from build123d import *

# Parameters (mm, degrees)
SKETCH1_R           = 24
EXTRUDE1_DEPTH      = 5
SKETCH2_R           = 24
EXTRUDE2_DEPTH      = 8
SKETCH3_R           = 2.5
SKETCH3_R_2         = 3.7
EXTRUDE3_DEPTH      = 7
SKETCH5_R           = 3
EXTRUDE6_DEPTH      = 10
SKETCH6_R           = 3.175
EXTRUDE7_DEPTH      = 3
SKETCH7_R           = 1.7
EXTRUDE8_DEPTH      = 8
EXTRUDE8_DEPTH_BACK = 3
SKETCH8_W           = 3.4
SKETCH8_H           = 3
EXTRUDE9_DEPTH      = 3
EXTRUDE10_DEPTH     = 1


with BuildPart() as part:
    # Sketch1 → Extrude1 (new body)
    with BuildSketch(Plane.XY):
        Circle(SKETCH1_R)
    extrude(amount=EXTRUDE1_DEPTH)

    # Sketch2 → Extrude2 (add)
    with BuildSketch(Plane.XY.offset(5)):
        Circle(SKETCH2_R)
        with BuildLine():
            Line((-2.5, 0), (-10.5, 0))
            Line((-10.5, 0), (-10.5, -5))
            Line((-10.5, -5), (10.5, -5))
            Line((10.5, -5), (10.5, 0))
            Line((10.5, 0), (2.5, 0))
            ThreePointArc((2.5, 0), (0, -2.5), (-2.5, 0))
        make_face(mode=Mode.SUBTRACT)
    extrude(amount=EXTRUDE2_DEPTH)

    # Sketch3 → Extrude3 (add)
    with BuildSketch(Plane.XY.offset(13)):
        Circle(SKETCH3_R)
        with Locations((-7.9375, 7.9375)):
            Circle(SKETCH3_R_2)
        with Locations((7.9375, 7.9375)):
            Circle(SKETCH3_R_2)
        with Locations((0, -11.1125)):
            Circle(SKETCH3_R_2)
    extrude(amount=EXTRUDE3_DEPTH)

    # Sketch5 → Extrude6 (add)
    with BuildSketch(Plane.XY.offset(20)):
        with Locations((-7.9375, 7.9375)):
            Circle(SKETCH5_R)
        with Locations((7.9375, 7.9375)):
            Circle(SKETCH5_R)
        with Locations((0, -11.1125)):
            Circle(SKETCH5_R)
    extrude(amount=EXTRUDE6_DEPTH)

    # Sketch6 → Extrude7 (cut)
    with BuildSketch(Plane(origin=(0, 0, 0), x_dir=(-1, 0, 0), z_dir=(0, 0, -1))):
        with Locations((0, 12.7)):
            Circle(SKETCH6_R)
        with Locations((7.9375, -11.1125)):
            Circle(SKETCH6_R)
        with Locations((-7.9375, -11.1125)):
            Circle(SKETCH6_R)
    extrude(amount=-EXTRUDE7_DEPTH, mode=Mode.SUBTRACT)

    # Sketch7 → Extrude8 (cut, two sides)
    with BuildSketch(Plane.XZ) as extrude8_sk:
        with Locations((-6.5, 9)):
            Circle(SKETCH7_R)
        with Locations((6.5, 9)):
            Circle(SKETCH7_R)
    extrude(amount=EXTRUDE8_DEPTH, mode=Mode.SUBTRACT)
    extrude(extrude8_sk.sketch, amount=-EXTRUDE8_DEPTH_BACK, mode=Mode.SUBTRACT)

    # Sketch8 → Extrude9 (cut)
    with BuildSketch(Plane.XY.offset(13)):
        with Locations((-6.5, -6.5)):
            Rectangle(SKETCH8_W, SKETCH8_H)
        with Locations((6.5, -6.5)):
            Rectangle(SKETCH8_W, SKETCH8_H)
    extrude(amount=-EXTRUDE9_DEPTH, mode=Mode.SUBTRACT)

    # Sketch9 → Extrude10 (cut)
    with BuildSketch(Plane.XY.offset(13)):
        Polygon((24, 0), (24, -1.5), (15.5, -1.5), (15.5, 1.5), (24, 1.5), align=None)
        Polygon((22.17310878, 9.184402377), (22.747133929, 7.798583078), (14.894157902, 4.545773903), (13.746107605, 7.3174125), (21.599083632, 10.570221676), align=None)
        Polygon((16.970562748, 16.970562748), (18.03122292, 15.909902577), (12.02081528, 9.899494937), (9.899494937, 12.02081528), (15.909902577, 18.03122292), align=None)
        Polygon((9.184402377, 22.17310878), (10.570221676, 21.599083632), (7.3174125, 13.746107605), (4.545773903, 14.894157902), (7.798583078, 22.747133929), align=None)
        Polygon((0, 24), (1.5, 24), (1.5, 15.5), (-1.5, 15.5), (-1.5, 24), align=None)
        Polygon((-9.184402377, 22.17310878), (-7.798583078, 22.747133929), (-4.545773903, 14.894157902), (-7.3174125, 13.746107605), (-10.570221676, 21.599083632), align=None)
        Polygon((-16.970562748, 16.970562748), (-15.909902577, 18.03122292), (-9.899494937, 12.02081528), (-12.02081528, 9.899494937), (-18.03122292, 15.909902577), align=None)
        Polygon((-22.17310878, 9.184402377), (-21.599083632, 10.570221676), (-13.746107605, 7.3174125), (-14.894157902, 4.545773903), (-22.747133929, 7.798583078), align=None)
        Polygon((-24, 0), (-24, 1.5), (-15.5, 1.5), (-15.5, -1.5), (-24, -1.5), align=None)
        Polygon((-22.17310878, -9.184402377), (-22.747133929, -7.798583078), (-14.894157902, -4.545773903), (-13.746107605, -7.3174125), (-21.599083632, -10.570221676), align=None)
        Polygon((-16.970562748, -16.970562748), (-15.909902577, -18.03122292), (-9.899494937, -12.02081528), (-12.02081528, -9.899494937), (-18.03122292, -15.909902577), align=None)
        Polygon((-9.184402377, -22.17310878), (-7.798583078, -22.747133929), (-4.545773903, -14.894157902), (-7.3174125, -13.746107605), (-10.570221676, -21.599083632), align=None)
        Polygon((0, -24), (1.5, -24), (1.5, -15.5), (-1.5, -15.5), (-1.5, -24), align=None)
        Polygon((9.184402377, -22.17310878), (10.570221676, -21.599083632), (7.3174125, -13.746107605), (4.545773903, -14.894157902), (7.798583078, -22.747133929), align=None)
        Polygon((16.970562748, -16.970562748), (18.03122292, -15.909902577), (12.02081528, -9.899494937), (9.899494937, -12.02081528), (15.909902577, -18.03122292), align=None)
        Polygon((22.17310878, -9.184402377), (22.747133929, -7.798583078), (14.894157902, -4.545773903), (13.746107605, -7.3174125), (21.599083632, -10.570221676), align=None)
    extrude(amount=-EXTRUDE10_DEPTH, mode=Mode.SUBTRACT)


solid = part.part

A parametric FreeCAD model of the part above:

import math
import FreeCAD as App
import Part
import Sketcher
Q = App.Units.Quantity


def add_polygon(sketch, points):
    """Adds a closed chain of lines whose ends are joined by coincident constraints."""
    first, n = sketch.GeometryCount, len(points)
    for a, b in zip(points, points[1:] + points[:1]):
        sketch.addGeometry(Part.LineSegment(App.Vector(*a, 0), App.Vector(*b, 0)), False)
    for i in range(n):
        sketch.addConstraint(Sketcher.Constraint("Coincident", first + i, 2, first + (i + 1) % n, 1))

doc = App.newDocument("Part")
params = doc.addObject("Spreadsheet::Sheet", "Params")
for row, (alias, value) in enumerate([
    ("sketch1_diameter", "48 mm"),
    ("pad1_length", "5 mm"),
    ("sketch2_diameter", "48 mm"),
    ("sketch2_radius", "2.5 mm"),
    ("sketch2_width", "8 mm"),
    ("sketch2_height", "5 mm"),
    ("pad2_length", "8 mm"),
    ("sketch3_diameter", "5 mm"),
    ("sketch3_diameter2", "7.4 mm"),
    ("pad3_length", "7 mm"),
    ("sketch4_diameter", "6 mm"),
    ("pad4_length", "10 mm"),
    ("sketch5_diameter", "6.35 mm"),
    ("pocket1_length", "3 mm"),
    ("sketch6_diameter", "3.4 mm"),
    ("pocket2_length", "8 mm"),
    ("pocket2_length2", "3 mm"),
    ("sketch7_height", "3 mm"),
    ("sketch7_width", "3.4 mm"),
    ("pocket3_length", "3 mm"),
    ("sketch8_width", "3 mm"),
    ("sketch8_length", "3 mm"),
    ("sketch8_width2", "8.5 mm"),
    ("sketch8_length2", "8.5 mm"),
    ("pocket4_length", "1 mm"),
], start=1):
    params.set(f"A{row}", alias)
    params.set(f"B{row}", "=" + value)
    params.setAlias(f"B{row}", alias)

body = doc.addObject("PartDesign::Body", "Body")

# Sketch on XY plane
sketch1 = body.newObject("Sketcher::SketchObject", "Sketch")
sketch1.AttachmentSupport = (doc.getObject("XY_Plane"), [""])
sketch1.MapMode = "FlatFace"
sketch1.addGeometry(Part.Circle(App.Vector(0, 0, 0), App.Vector(0, 0, 1), 24), False)
sketch1.addConstraint(Sketcher.Constraint("Coincident", 0, 3, -1, 1))
sketch1.addConstraint(Sketcher.Constraint("Diameter", 0, 48.0))
sketch1.setExpression("Constraints[1]", "Params.sketch1_diameter")
pad1 = body.newObject("PartDesign::Pad", "Pad")
pad1.Profile = sketch1
pad1.setExpression("Length", "Params.pad1_length")

# Sketch on XY plane
sketch2 = body.newObject("Sketcher::SketchObject", "Sketch001")
sketch2.AttachmentSupport = (doc.getObject("XY_Plane"), [""])
sketch2.MapMode = "FlatFace"
sketch2.AttachmentOffset = App.Placement(App.Vector(0, 0, 5), App.Rotation())
sketch2.addGeometry(Part.Circle(App.Vector(0, 0, 0), App.Vector(0, 0, 1), 24), False)
sketch2.addGeometry(Part.LineSegment(App.Vector(-10.5, 0, 0), App.Vector(-2.5, 0, 0)), False)
sketch2.addGeometry(Part.ArcOfCircle(Part.Circle(App.Vector(0, 0, 0), App.Vector(0, 0, 1), 2.5), math.radians(180), math.radians(360)), False)
sketch2.addGeometry(Part.LineSegment(App.Vector(2.5, 0, 0), App.Vector(10.5, 0, 0)), False)
sketch2.addGeometry(Part.LineSegment(App.Vector(10.5, 0, 0), App.Vector(10.5, -5, 0)), False)
sketch2.addGeometry(Part.LineSegment(App.Vector(10.5, -5, 0), App.Vector(-10.5, -5, 0)), False)
sketch2.addGeometry(Part.LineSegment(App.Vector(-10.5, -5, 0), App.Vector(-10.5, 0, 0)), False)
sketch2.addConstraint(Sketcher.Constraint("Coincident", 1, 2, 2, 1))
sketch2.addConstraint(Sketcher.Constraint("Coincident", 2, 2, 3, 1))
sketch2.addConstraint(Sketcher.Constraint("Coincident", 3, 2, 4, 1))
sketch2.addConstraint(Sketcher.Constraint("Coincident", 4, 2, 5, 1))
sketch2.addConstraint(Sketcher.Constraint("Coincident", 5, 2, 6, 1))
sketch2.addConstraint(Sketcher.Constraint("Coincident", 6, 2, 1, 1))
sketch2.addConstraint(Sketcher.Constraint("Horizontal", 1))
sketch2.addConstraint(Sketcher.Constraint("Horizontal", 3))
sketch2.addConstraint(Sketcher.Constraint("Vertical", 4))
sketch2.addConstraint(Sketcher.Constraint("Horizontal", 5))
sketch2.addConstraint(Sketcher.Constraint("Vertical", 6))
sketch2.addConstraint(Sketcher.Constraint("Coincident", 0, 3, -1, 1))
sketch2.addConstraint(Sketcher.Constraint("Coincident", 2, 3, -1, 1))
sketch2.addConstraint(Sketcher.Constraint("Symmetric", 3, 2, 6, 2, -1, 1))
sketch2.addConstraint(Sketcher.Constraint("PointOnObject", 1, 2, -1))
sketch2.addConstraint(Sketcher.Constraint("Diameter", 0, 48.0))
sketch2.addConstraint(Sketcher.Constraint("Radius", 2, 2.5))
sketch2.addConstraint(Sketcher.Constraint("DistanceX", 1, 1, 1, 2, 8.0))
sketch2.addConstraint(Sketcher.Constraint("DistanceY", 4, 2, 4, 1, 5.0))
sketch2.setExpression("Constraints[15]", "Params.sketch2_diameter")
sketch2.setExpression("Constraints[16]", "Params.sketch2_radius")
sketch2.setExpression("Constraints[17]", "Params.sketch2_width")
sketch2.setExpression("Constraints[18]", "Params.sketch2_height")
pad2 = body.newObject("PartDesign::Pad", "Pad001")
pad2.Profile = sketch2
pad2.setExpression("Length", "Params.pad2_length")

# Sketch on XY plane
sketch3 = body.newObject("Sketcher::SketchObject", "Sketch002")
sketch3.AttachmentSupport = (doc.getObject("XY_Plane"), [""])
sketch3.MapMode = "FlatFace"
sketch3.AttachmentOffset = App.Placement(App.Vector(0, 0, 13), App.Rotation())
sketch3.addGeometry(Part.Circle(App.Vector(0, 0, 0), App.Vector(0, 0, 1), 2.5), False)
sketch3.addGeometry(Part.Circle(App.Vector(-7.9, 7.9, 0), App.Vector(0, 0, 1), 3.7), False)
sketch3.addGeometry(Part.Circle(App.Vector(7.9, 7.9, 0), App.Vector(0, 0, 1), 3.7), False)
sketch3.addGeometry(Part.Circle(App.Vector(0, -11.1, 0), App.Vector(0, 0, 1), 3.7), False)
sketch3.addConstraint(Sketcher.Constraint("Coincident", 0, 3, -1, 1))
sketch3.addConstraint(Sketcher.Constraint("Equal", 1, 2))
sketch3.addConstraint(Sketcher.Constraint("Equal", 2, 3))
sketch3.addConstraint(Sketcher.Constraint("Symmetric", 1, 3, 2, 3, -2))
sketch3.addConstraint(Sketcher.Constraint("PointOnObject", 3, 3, -2))
sketch3.addConstraint(Sketcher.Constraint("Diameter", 0, 5.0))
sketch3.addConstraint(Sketcher.Constraint("Diameter", 1, 7.4))
sketch3.addConstraint(Sketcher.Constraint("DistanceY", 3, 3, 1, 3, 19.05))
sketch3.addConstraint(Sketcher.Constraint("DistanceX", 1, 3, 2, 3, 15.875))
sketch3.addConstraint(Sketcher.Constraint("DistanceY", -1, 1, 1, 3, 7.9375))
sketch3.setExpression("Constraints[5]", "Params.sketch3_diameter")
sketch3.setExpression("Constraints[6]", "Params.sketch3_diameter2")
pad3 = body.newObject("PartDesign::Pad", "Pad002")
pad3.Profile = sketch3
pad3.setExpression("Length", "Params.pad3_length")

# Sketch on XY plane
sketch4 = body.newObject("Sketcher::SketchObject", "Sketch003")
sketch4.AttachmentSupport = (doc.getObject("XY_Plane"), [""])
sketch4.MapMode = "FlatFace"
sketch4.AttachmentOffset = App.Placement(App.Vector(0, 0, 20), App.Rotation())
sketch4.addGeometry(Part.Circle(App.Vector(-7.9, 7.9, 0), App.Vector(0, 0, 1), 3), False)
sketch4.addGeometry(Part.Circle(App.Vector(7.9, 7.9, 0), App.Vector(0, 0, 1), 3), False)
sketch4.addGeometry(Part.Circle(App.Vector(0, -11.1, 0), App.Vector(0, 0, 1), 3), False)
sketch4.addConstraint(Sketcher.Constraint("Equal", 0, 1))
sketch4.addConstraint(Sketcher.Constraint("Equal", 1, 2))
sketch4.addConstraint(Sketcher.Constraint("Symmetric", 0, 3, 1, 3, -2))
sketch4.addConstraint(Sketcher.Constraint("PointOnObject", 2, 3, -2))
sketch4.addConstraint(Sketcher.Constraint("Diameter", 0, 6.0))
sketch4.addConstraint(Sketcher.Constraint("DistanceY", 2, 3, 0, 3, 19.05))
sketch4.addConstraint(Sketcher.Constraint("DistanceX", 0, 3, 1, 3, 15.875))
sketch4.addConstraint(Sketcher.Constraint("DistanceY", -1, 1, 0, 3, 7.9375))
sketch4.setExpression("Constraints[4]", "Params.sketch4_diameter")
pad4 = body.newObject("PartDesign::Pad", "Pad003")
pad4.Profile = sketch4
pad4.setExpression("Length", "Params.pad4_length")

# Sketch on XY plane
sketch5 = body.newObject("Sketcher::SketchObject", "Sketch004")
sketch5.AttachmentSupport = (doc.getObject("XY_Plane"), [""])
sketch5.MapMode = "FlatFace"
sketch5.addGeometry(Part.Circle(App.Vector(0, 12.7, 0), App.Vector(0, 0, 1), 3.2), False)
sketch5.addGeometry(Part.Circle(App.Vector(-7.9, -11.1, 0), App.Vector(0, 0, 1), 3.2), False)
sketch5.addGeometry(Part.Circle(App.Vector(7.9, -11.1, 0), App.Vector(0, 0, 1), 3.2), False)
sketch5.addConstraint(Sketcher.Constraint("Equal", 0, 1))
sketch5.addConstraint(Sketcher.Constraint("Equal", 1, 2))
sketch5.addConstraint(Sketcher.Constraint("Symmetric", 1, 3, 2, 3, -2))
sketch5.addConstraint(Sketcher.Constraint("PointOnObject", 0, 3, -2))
sketch5.addConstraint(Sketcher.Constraint("Diameter", 0, 6.35))
sketch5.addConstraint(Sketcher.Constraint("DistanceY", -1, 1, 0, 3, 12.7))
sketch5.addConstraint(Sketcher.Constraint("DistanceX", 1, 3, 2, 3, 15.875))
sketch5.addConstraint(Sketcher.Constraint("DistanceY", 1, 3, -1, 1, 11.1125))
sketch5.setExpression("Constraints[4]", "Params.sketch5_diameter")
pocket1 = body.newObject("PartDesign::Pocket", "Pocket")
pocket1.Profile = sketch5
pocket1.setExpression("Length", "Params.pocket1_length")
pocket1.Reversed = True

# Sketch on XZ plane
sketch6 = body.newObject("Sketcher::SketchObject", "Sketch005")
sketch6.AttachmentSupport = (doc.getObject("XZ_Plane"), [""])
sketch6.MapMode = "FlatFace"
sketch6.addGeometry(Part.Circle(App.Vector(-6.5, 9, 0), App.Vector(0, 0, 1), 1.7), False)
sketch6.addGeometry(Part.Circle(App.Vector(6.5, 9, 0), App.Vector(0, 0, 1), 1.7), False)
sketch6.addConstraint(Sketcher.Constraint("Equal", 0, 1))
sketch6.addConstraint(Sketcher.Constraint("Symmetric", 0, 3, 1, 3, -2))
sketch6.addConstraint(Sketcher.Constraint("Diameter", 0, 3.4))
sketch6.addConstraint(Sketcher.Constraint("DistanceY", -1, 1, 0, 3, 9.0))
sketch6.addConstraint(Sketcher.Constraint("DistanceX", 0, 3, 1, 3, 13.0))
sketch6.setExpression("Constraints[2]", "Params.sketch6_diameter")
pocket2 = body.newObject("PartDesign::Pocket", "Pocket001")
pocket2.Profile = sketch6
pocket2.Type = "TwoLengths"
pocket2.setExpression("Length", "Params.pocket2_length")
pocket2.setExpression("Length2", "Params.pocket2_length2")
pocket2.Reversed = True

# Sketch on XY plane
sketch7 = body.newObject("Sketcher::SketchObject", "Sketch006")
sketch7.AttachmentSupport = (doc.getObject("XY_Plane"), [""])
sketch7.MapMode = "FlatFace"
sketch7.AttachmentOffset = App.Placement(App.Vector(0, 0, 13), App.Rotation())
add_polygon(sketch7, [(-8.2, -5), (-8.2, -8), (-4.8, -8), (-4.8, -5)])  # lines 0-3
add_polygon(sketch7, [(4.8, -5), (4.8, -8), (8.2, -8), (8.2, -5)])  # lines 4-7
sketch7.addConstraint(Sketcher.Constraint("Vertical", 0))
sketch7.addConstraint(Sketcher.Constraint("Horizontal", 1))
sketch7.addConstraint(Sketcher.Constraint("Vertical", 2))
sketch7.addConstraint(Sketcher.Constraint("Horizontal", 3))
sketch7.addConstraint(Sketcher.Constraint("Vertical", 4))
sketch7.addConstraint(Sketcher.Constraint("Horizontal", 5))
sketch7.addConstraint(Sketcher.Constraint("Vertical", 6))
sketch7.addConstraint(Sketcher.Constraint("Horizontal", 7))
sketch7.addConstraint(Sketcher.Constraint("Symmetric", 1, 2, 4, 2, -2))
sketch7.addConstraint(Sketcher.Constraint("Symmetric", 3, 2, 6, 2, -2))
sketch7.addConstraint(Sketcher.Constraint("DistanceY", 0, 2, 0, 1, 3.0))
sketch7.addConstraint(Sketcher.Constraint("DistanceX", 1, 1, 1, 2, 3.4))
sketch7.addConstraint(Sketcher.Constraint("DistanceY", 0, 2, -1, 1, 8.0))
sketch7.addConstraint(Sketcher.Constraint("DistanceX", 0, 2, 4, 2, 13.0))
sketch7.setExpression("Constraints[18]", "Params.sketch7_height")
sketch7.setExpression("Constraints[19]", "Params.sketch7_width")
pocket3 = body.newObject("PartDesign::Pocket", "Pocket002")
pocket3.Profile = sketch7
pocket3.setExpression("Length", "Params.pocket3_length")

# Sketch on XY plane
sketch8 = body.newObject("Sketcher::SketchObject", "Sketch007")
sketch8.AttachmentSupport = (doc.getObject("XY_Plane"), [""])
sketch8.MapMode = "FlatFace"
sketch8.AttachmentOffset = App.Placement(App.Vector(0, 0, 13), App.Rotation())
add_polygon(sketch8, [(24, -1.5), (24, 1.5), (15.5, 1.5), (15.5, -1.5)])  # lines 0-3
add_polygon(sketch8, [(22.7, 7.8), (22.2, 9.2), (21.6, 10.6), (13.7, 7.3), (14.9, 4.5)])  # lines 4-8
add_polygon(sketch8, [(18, 15.9), (17, 17), (15.9, 18), (9.9, 12), (12, 9.9)])  # lines 9-13
add_polygon(sketch8, [(10.6, 21.6), (9.2, 22.2), (7.8, 22.7), (4.5, 14.9), (7.3, 13.7)])  # lines 14-18
add_polygon(sketch8, [(1.5, 24), (-1.5, 24), (-1.5, 15.5), (1.5, 15.5)])  # lines 19-22
add_polygon(sketch8, [(-7.8, 22.7), (-9.2, 22.2), (-10.6, 21.6), (-7.3, 13.7), (-4.5, 14.9)])  # lines 23-27
add_polygon(sketch8, [(-15.9, 18), (-17, 17), (-18, 15.9), (-12, 9.9), (-9.9, 12)])  # lines 28-32
add_polygon(sketch8, [(-21.6, 10.6), (-22.2, 9.2), (-22.7, 7.8), (-14.9, 4.5), (-13.7, 7.3)])  # lines 33-37
add_polygon(sketch8, [(-24, 1.5), (-24, -1.5), (-15.5, -1.5), (-15.5, 1.5)])  # lines 38-41
add_polygon(sketch8, [(-22.7, -7.8), (-22.2, -9.2), (-21.6, -10.6), (-13.7, -7.3), (-14.9, -4.5)])  # lines 42-46
add_polygon(sketch8, [(-17, -17), (-15.9, -18), (-9.9, -12), (-12, -9.9), (-18, -15.9)])  # lines 47-51
add_polygon(sketch8, [(-9.2, -22.2), (-7.8, -22.7), (-4.5, -14.9), (-7.3, -13.7), (-10.6, -21.6)])  # lines 52-56
add_polygon(sketch8, [(1.5, -24), (1.5, -15.5), (-1.5, -15.5), (-1.5, -24)])  # lines 57-60
add_polygon(sketch8, [(9.2, -22.2), (10.6, -21.6), (7.3, -13.7), (4.5, -14.9), (7.8, -22.7)])  # lines 61-65
add_polygon(sketch8, [(17, -17), (18, -15.9), (12, -9.9), (9.9, -12), (15.9, -18)])  # lines 66-70
add_polygon(sketch8, [(22.2, -9.2), (22.7, -7.8), (14.9, -4.5), (13.7, -7.3), (21.6, -10.6)])  # lines 71-75
sketch8.addConstraint(Sketcher.Constraint("Vertical", 0))
sketch8.addConstraint(Sketcher.Constraint("Horizontal", 1))
sketch8.addConstraint(Sketcher.Constraint("Vertical", 2))
sketch8.addConstraint(Sketcher.Constraint("Horizontal", 3))
sketch8.addConstraint(Sketcher.Constraint("Horizontal", 19))
sketch8.addConstraint(Sketcher.Constraint("Vertical", 20))
sketch8.addConstraint(Sketcher.Constraint("Horizontal", 21))
sketch8.addConstraint(Sketcher.Constraint("Vertical", 22))
sketch8.addConstraint(Sketcher.Constraint("Vertical", 38))
sketch8.addConstraint(Sketcher.Constraint("Horizontal", 39))
sketch8.addConstraint(Sketcher.Constraint("Vertical", 40))
sketch8.addConstraint(Sketcher.Constraint("Horizontal", 41))
sketch8.addConstraint(Sketcher.Constraint("Vertical", 57))
sketch8.addConstraint(Sketcher.Constraint("Horizontal", 58))
sketch8.addConstraint(Sketcher.Constraint("Vertical", 59))
sketch8.addConstraint(Sketcher.Constraint("Horizontal", 60))
sketch8.addConstraint(Sketcher.Constraint("Symmetric", 0, 2, 38, 2, -1, 1))
sketch8.addConstraint(Sketcher.Constraint("Symmetric", 2, 2, 40, 2, -1, 1))
sketch8.addConstraint(Sketcher.Constraint("Symmetric", 4, 2, 42, 2, -1, 1))
sketch8.addConstraint(Sketcher.Constraint("Symmetric", 5, 2, 43, 2, -1, 1))
sketch8.addConstraint(Sketcher.Constraint("Symmetric", 6, 2, 44, 2, -1, 1))
sketch8.addConstraint(Sketcher.Constraint("Symmetric", 7, 2, 45, 2, -1, 1))
sketch8.addConstraint(Sketcher.Constraint("Symmetric", 8, 2, 46, 2, -1, 1))
sketch8.addConstraint(Sketcher.Constraint("Symmetric", 10, 2, 47, 2, -1, 1))
sketch8.addConstraint(Sketcher.Constraint("Symmetric", 11, 2, 48, 2, -1, 1))
sketch8.addConstraint(Sketcher.Constraint("Symmetric", 12, 2, 49, 2, -1, 1))
sketch8.addConstraint(Sketcher.Constraint("Symmetric", 13, 2, 50, 2, -1, 1))
sketch8.addConstraint(Sketcher.Constraint("Symmetric", 9, 2, 51, 2, -1, 1))
sketch8.addConstraint(Sketcher.Constraint("Symmetric", 15, 2, 52, 2, -1, 1))
sketch8.addConstraint(Sketcher.Constraint("Symmetric", 16, 2, 53, 2, -1, 1))
sketch8.addConstraint(Sketcher.Constraint("Symmetric", 17, 2, 54, 2, -1, 1))
sketch8.addConstraint(Sketcher.Constraint("Symmetric", 18, 2, 55, 2, -1, 1))
sketch8.addConstraint(Sketcher.Constraint("Symmetric", 14, 2, 56, 2, -1, 1))
sketch8.addConstraint(Sketcher.Constraint("Symmetric", 20, 2, 57, 2, -1, 1))
sketch8.addConstraint(Sketcher.Constraint("Symmetric", 22, 2, 59, 2, -1, 1))
sketch8.addConstraint(Sketcher.Constraint("Symmetric", 24, 2, 61, 2, -1, 1))
sketch8.addConstraint(Sketcher.Constraint("Symmetric", 25, 2, 62, 2, -1, 1))
sketch8.addConstraint(Sketcher.Constraint("Symmetric", 26, 2, 63, 2, -1, 1))
sketch8.addConstraint(Sketcher.Constraint("Symmetric", 27, 2, 64, 2, -1, 1))
sketch8.addConstraint(Sketcher.Constraint("Symmetric", 23, 2, 65, 2, -1, 1))
sketch8.addConstraint(Sketcher.Constraint("Symmetric", 29, 2, 66, 2, -1, 1))
sketch8.addConstraint(Sketcher.Constraint("Symmetric", 30, 2, 67, 2, -1, 1))
sketch8.addConstraint(Sketcher.Constraint("Symmetric", 31, 2, 68, 2, -1, 1))
sketch8.addConstraint(Sketcher.Constraint("Symmetric", 32, 2, 69, 2, -1, 1))
sketch8.addConstraint(Sketcher.Constraint("Symmetric", 28, 2, 70, 2, -1, 1))
sketch8.addConstraint(Sketcher.Constraint("Symmetric", 34, 2, 71, 2, -1, 1))
sketch8.addConstraint(Sketcher.Constraint("Symmetric", 35, 2, 72, 2, -1, 1))
sketch8.addConstraint(Sketcher.Constraint("Symmetric", 36, 2, 73, 2, -1, 1))
sketch8.addConstraint(Sketcher.Constraint("Symmetric", 37, 2, 74, 2, -1, 1))
sketch8.addConstraint(Sketcher.Constraint("Symmetric", 33, 2, 75, 2, -1, 1))
sketch8.addConstraint(Sketcher.Constraint("Symmetric", 14, 2, 23, 2, -2))
sketch8.addConstraint(Sketcher.Constraint("Symmetric", 18, 2, 24, 2, -2))
sketch8.addConstraint(Sketcher.Constraint("Symmetric", 17, 2, 25, 2, -2))
sketch8.addConstraint(Sketcher.Constraint("Symmetric", 16, 2, 26, 2, -2))
sketch8.addConstraint(Sketcher.Constraint("Symmetric", 15, 2, 27, 2, -2))
sketch8.addConstraint(Sketcher.Constraint("Symmetric", 9, 2, 28, 2, -2))
sketch8.addConstraint(Sketcher.Constraint("Symmetric", 13, 2, 29, 2, -2))
sketch8.addConstraint(Sketcher.Constraint("Symmetric", 12, 2, 30, 2, -2))
sketch8.addConstraint(Sketcher.Constraint("Symmetric", 11, 2, 31, 2, -2))
sketch8.addConstraint(Sketcher.Constraint("Symmetric", 10, 2, 32, 2, -2))
sketch8.addConstraint(Sketcher.Constraint("Symmetric", 4, 2, 33, 2, -2))
sketch8.addConstraint(Sketcher.Constraint("Symmetric", 8, 2, 34, 2, -2))
sketch8.addConstraint(Sketcher.Constraint("Symmetric", 7, 2, 35, 2, -2))
sketch8.addConstraint(Sketcher.Constraint("Symmetric", 6, 2, 36, 2, -2))
sketch8.addConstraint(Sketcher.Constraint("Symmetric", 5, 2, 37, 2, -2))
sketch8.addConstraint(Sketcher.Constraint("Parallel", 4, 5))
sketch8.addConstraint(Sketcher.Constraint("Perpendicular", 5, 6))
sketch8.addConstraint(Sketcher.Constraint("Perpendicular", 6, 7))
sketch8.addConstraint(Sketcher.Constraint("Perpendicular", 7, 8))
sketch8.addConstraint(Sketcher.Constraint("Parallel", 9, 10))
sketch8.addConstraint(Sketcher.Constraint("Perpendicular", 10, 11))
sketch8.addConstraint(Sketcher.Constraint("Perpendicular", 11, 12))
sketch8.addConstraint(Sketcher.Constraint("Perpendicular", 12, 13))
sketch8.addConstraint(Sketcher.Constraint("Parallel", 14, 15))
sketch8.addConstraint(Sketcher.Constraint("Perpendicular", 15, 16))
sketch8.addConstraint(Sketcher.Constraint("Perpendicular", 16, 17))
sketch8.addConstraint(Sketcher.Constraint("Perpendicular", 17, 18))
sketch8.addConstraint(Sketcher.Constraint("Parallel", 8, 23))
sketch8.addConstraint(Sketcher.Constraint("Parallel", 13, 28))
sketch8.addConstraint(Sketcher.Constraint("Horizontal", 3, 2, 38, 2))
sketch8.addConstraint(Sketcher.Constraint("Vertical", 22, 2, 57, 2))
sketch8.addConstraint(Sketcher.Constraint("Equal", 60, 0))
sketch8.addConstraint(Sketcher.Constraint("Equal", 41, 20))
sketch8.addConstraint(Sketcher.Constraint("Equal", 4, 5))
sketch8.addConstraint(Sketcher.Constraint("Equal", 5, 9))
sketch8.addConstraint(Sketcher.Constraint("Equal", 9, 10))
sketch8.addConstraint(Sketcher.Constraint("Equal", 8, 11))
sketch8.addConstraint(Sketcher.Constraint("Equal", 10, 14))
sketch8.addConstraint(Sketcher.Constraint("Equal", 14, 15))
sketch8.addConstraint(Sketcher.Constraint("Equal", 13, 16))
sketch8.addConstraint(Sketcher.Constraint("DistanceX", 19, 2, 19, 1, 3.0))
sketch8.addConstraint(Sketcher.Constraint("Distance", 7, 3.0))
sketch8.addConstraint(Sketcher.Constraint("DistanceX", 1, 2, 1, 1, 8.5))
sketch8.addConstraint(Sketcher.Constraint("DistanceX", -1, 1, 0, 2, 24.0))
sketch8.addConstraint(Sketcher.Constraint("DistanceY", -1, 1, 19, 2, 24.0))
sketch8.addConstraint(Sketcher.Constraint("Angle", 4, Q("112.5 deg")))
sketch8.addConstraint(Sketcher.Constraint("Distance", 6, 8.5))
sketch8.addConstraint(Sketcher.Constraint("DistanceX", -1, 1, 4, 2, 22.173109))
sketch8.addConstraint(Sketcher.Constraint("DistanceY", -1, 1, 5, 2, 10.570222))
sketch8.addConstraint(Sketcher.Constraint("DistanceY", -1, 1, 14, 2, 22.173109))
sketch8.addConstraint(Sketcher.Constraint("DistanceX", -1, 1, 18, 2, 10.570222))
sketch8.addConstraint(Sketcher.Constraint("DistanceX", -1, 1, 9, 2, 16.970563))
sketch8.addConstraint(Sketcher.Constraint("DistanceY", -1, 1, 9, 2, 16.970563))
sketch8.setExpression("Constraints[166]", "Params.sketch8_width")
sketch8.setExpression("Constraints[167]", "Params.sketch8_length")
sketch8.setExpression("Constraints[168]", "Params.sketch8_width2")
sketch8.setExpression("Constraints[172]", "Params.sketch8_length2")
pocket4 = body.newObject("PartDesign::Pocket", "Pocket003")
pocket4.Profile = sketch8
pocket4.setExpression("Length", "Params.pocket4_length")

doc.recompute()
